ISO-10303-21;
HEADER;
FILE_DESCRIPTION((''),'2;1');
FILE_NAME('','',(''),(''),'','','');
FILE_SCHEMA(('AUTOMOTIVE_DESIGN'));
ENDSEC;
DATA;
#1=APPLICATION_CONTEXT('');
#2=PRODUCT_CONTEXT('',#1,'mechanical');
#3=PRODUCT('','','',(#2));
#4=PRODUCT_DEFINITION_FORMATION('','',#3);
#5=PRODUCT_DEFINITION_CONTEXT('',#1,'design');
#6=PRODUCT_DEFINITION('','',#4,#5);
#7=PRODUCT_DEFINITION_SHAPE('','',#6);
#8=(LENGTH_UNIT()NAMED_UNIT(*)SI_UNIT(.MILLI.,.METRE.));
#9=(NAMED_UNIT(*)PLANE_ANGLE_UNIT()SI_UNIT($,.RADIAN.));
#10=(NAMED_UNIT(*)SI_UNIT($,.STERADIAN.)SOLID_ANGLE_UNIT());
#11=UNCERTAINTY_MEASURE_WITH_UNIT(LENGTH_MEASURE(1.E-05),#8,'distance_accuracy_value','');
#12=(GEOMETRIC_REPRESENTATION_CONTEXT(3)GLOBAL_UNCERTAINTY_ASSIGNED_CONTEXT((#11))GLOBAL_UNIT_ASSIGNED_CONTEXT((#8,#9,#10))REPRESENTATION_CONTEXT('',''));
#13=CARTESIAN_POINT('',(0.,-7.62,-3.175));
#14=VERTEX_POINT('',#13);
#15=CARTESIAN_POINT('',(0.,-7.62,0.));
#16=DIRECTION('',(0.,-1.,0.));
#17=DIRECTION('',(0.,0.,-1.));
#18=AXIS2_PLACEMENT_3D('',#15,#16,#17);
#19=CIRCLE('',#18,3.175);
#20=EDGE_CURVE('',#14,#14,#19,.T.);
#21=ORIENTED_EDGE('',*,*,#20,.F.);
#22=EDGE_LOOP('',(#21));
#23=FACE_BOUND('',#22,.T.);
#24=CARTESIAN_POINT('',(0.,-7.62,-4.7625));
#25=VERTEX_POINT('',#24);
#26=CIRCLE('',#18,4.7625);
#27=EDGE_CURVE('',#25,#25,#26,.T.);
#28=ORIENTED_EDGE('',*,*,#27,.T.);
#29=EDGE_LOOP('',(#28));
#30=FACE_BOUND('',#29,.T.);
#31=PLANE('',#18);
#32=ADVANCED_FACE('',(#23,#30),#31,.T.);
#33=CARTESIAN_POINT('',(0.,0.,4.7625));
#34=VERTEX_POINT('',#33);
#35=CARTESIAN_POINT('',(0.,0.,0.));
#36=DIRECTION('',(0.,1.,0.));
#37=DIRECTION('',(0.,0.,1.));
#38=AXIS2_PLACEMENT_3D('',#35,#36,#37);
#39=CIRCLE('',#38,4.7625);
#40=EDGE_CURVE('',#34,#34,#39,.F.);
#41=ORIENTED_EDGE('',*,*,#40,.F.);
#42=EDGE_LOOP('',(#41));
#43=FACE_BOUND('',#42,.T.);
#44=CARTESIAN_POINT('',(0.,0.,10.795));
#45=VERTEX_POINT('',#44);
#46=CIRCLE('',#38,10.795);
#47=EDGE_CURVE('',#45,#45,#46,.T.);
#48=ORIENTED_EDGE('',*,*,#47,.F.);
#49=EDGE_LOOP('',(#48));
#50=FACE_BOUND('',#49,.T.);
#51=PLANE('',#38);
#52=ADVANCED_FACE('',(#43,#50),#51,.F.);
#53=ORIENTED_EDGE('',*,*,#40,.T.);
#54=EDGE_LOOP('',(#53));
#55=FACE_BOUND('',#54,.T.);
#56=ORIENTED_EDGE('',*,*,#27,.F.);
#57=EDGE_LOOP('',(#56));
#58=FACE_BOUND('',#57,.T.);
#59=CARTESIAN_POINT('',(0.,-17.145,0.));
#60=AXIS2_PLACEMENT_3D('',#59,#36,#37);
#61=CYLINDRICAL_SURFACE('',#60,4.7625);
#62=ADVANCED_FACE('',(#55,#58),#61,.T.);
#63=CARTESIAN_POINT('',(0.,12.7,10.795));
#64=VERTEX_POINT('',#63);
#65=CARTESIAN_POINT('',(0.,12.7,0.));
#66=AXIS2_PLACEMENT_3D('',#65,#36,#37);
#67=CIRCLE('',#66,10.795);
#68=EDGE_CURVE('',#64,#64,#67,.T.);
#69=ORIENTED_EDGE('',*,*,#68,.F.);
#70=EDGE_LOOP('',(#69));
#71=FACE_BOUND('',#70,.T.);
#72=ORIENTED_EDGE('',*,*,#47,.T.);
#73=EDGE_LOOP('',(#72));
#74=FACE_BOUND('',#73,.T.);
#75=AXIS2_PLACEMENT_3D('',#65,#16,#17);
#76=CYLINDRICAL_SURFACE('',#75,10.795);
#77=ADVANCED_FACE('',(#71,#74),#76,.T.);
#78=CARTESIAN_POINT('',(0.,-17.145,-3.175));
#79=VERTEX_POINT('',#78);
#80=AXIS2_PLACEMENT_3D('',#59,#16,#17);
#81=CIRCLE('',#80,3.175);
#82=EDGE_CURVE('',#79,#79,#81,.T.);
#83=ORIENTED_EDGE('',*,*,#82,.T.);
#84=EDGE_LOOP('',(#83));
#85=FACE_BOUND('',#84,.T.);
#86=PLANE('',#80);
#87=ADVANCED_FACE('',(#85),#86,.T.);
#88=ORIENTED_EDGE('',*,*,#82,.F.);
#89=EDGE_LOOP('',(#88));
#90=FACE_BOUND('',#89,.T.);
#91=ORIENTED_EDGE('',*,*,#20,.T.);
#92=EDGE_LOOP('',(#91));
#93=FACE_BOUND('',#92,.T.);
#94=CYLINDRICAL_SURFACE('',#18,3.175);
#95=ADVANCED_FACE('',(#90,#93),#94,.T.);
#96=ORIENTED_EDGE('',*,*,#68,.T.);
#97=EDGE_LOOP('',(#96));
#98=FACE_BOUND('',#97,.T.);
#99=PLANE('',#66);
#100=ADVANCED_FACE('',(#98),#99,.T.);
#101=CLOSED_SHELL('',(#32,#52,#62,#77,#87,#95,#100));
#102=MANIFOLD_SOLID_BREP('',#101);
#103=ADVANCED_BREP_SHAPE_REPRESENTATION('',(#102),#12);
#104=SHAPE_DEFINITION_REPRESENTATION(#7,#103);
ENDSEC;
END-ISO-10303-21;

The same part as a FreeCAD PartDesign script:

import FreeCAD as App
import Part
import Sketcher
Q = App.Units.Quantity

doc = App.newDocument("Part")
body = doc.addObject("PartDesign::Body", "Body")

# Sketch on XZ plane
sketch1 = body.newObject("Sketcher::SketchObject", "Sketch")
sketch1.AttachmentSupport = (doc.getObject("XZ_Plane"), [""])
sketch1.MapMode = "FlatFace"
sketch1.addGeometry(Part.Circle(App.Vector(0, 0, 0), App.Vector(0, 0, 1), 11), False)
sketch1.addConstraint([
    Sketcher.Constraint("Coincident", 0, 3, -1, 1),
    Sketcher.Constraint("Diameter", 0, Q("0.85 in")),
])
pad1 = body.newObject("PartDesign::Pad", "Pad")
pad1.Profile = sketch1
pad1.Length = Q("0.5 in")
pad1.Reversed = True

# Sketch on XZ plane
sketch2 = body.newObject("Sketcher::SketchObject", "Sketch001")
sketch2.AttachmentSupport = (doc.getObject("XZ_Plane"), [""])
sketch2.MapMode = "FlatFace"
sketch2.addGeometry(Part.Circle(App.Vector(0, 0, 0), App.Vector(0, 0, 1), 4.8), False)
sketch2.addConstraint([
    Sketcher.Constraint("Coincident", 0, 3, -1, 1),
    Sketcher.Constraint("Diameter", 0, Q("0.375 in")),
])
pad2 = body.newObject("PartDesign::Pad", "Pad001")
pad2.Profile = sketch2
pad2.Length = Q("0.675 in")

# Sketch on XZ plane
sketch3 = body.newObject("Sketcher::SketchObject", "Sketch002")
sketch3.AttachmentSupport = (doc.getObject("XZ_Plane"), [""])
sketch3.MapMode = "FlatFace"
sketch3.AttachmentOffset = App.Placement(App.Vector(0, 0, 0.675 * 25.4), App.Rotation())
sketch3.addGeometry([
    Part.LineSegment(App.Vector(-16.1, 16.1, 0), App.Vector(-16.1, -16.1, 0)),  # 0
    Part.LineSegment(App.Vector(-16.1, -16.1, 0), App.Vector(16.1, -16.1, 0)),  # 1
    Part.LineSegment(App.Vector(16.1, -16.1, 0), App.Vector(16.1, 16.1, 0)),  # 2
    Part.LineSegment(App.Vector(16.1, 16.1, 0), App.Vector(-16.1, 16.1, 0)),  # 3
    Part.Circle(App.Vector(0, 0, 0), App.Vector(0, 0, 1), 3.2),  # 4
], False)
sketch3.addConstraint([
    Sketcher.Constraint("Coincident", 0, 2, 1, 1),
    Sketcher.Constraint("Coincident", 1, 2, 2, 1),
    Sketcher.Constraint("Coincident", 2, 2, 3, 1),
    Sketcher.Constraint("Coincident", 3, 2, 0, 1),
    Sketcher.Constraint("Vertical", 0),
    Sketcher.Constraint("Horizontal", 1),
    Sketcher.Constraint("Vertical", 2),
    Sketcher.Constraint("Horizontal", 3),
    Sketcher.Constraint("Coincident", 4, 3, -1, 1),
    Sketcher.Constraint("Symmetric", 0, 2, 2, 2, -1, 1),
    Sketcher.Constraint("Equal", 3, 0),
    Sketcher.Constraint("Diameter", 4, Q("0.25 in")),
    Sketcher.Constraint("DistanceX", 1, 1, 1, 2, Q("32.13 mm")),
])
pocket1 = body.newObject("PartDesign::Pocket", "Pocket")
pocket1.Profile = sketch3
pocket1.Length = Q("0.375 in")

doc.recompute()
